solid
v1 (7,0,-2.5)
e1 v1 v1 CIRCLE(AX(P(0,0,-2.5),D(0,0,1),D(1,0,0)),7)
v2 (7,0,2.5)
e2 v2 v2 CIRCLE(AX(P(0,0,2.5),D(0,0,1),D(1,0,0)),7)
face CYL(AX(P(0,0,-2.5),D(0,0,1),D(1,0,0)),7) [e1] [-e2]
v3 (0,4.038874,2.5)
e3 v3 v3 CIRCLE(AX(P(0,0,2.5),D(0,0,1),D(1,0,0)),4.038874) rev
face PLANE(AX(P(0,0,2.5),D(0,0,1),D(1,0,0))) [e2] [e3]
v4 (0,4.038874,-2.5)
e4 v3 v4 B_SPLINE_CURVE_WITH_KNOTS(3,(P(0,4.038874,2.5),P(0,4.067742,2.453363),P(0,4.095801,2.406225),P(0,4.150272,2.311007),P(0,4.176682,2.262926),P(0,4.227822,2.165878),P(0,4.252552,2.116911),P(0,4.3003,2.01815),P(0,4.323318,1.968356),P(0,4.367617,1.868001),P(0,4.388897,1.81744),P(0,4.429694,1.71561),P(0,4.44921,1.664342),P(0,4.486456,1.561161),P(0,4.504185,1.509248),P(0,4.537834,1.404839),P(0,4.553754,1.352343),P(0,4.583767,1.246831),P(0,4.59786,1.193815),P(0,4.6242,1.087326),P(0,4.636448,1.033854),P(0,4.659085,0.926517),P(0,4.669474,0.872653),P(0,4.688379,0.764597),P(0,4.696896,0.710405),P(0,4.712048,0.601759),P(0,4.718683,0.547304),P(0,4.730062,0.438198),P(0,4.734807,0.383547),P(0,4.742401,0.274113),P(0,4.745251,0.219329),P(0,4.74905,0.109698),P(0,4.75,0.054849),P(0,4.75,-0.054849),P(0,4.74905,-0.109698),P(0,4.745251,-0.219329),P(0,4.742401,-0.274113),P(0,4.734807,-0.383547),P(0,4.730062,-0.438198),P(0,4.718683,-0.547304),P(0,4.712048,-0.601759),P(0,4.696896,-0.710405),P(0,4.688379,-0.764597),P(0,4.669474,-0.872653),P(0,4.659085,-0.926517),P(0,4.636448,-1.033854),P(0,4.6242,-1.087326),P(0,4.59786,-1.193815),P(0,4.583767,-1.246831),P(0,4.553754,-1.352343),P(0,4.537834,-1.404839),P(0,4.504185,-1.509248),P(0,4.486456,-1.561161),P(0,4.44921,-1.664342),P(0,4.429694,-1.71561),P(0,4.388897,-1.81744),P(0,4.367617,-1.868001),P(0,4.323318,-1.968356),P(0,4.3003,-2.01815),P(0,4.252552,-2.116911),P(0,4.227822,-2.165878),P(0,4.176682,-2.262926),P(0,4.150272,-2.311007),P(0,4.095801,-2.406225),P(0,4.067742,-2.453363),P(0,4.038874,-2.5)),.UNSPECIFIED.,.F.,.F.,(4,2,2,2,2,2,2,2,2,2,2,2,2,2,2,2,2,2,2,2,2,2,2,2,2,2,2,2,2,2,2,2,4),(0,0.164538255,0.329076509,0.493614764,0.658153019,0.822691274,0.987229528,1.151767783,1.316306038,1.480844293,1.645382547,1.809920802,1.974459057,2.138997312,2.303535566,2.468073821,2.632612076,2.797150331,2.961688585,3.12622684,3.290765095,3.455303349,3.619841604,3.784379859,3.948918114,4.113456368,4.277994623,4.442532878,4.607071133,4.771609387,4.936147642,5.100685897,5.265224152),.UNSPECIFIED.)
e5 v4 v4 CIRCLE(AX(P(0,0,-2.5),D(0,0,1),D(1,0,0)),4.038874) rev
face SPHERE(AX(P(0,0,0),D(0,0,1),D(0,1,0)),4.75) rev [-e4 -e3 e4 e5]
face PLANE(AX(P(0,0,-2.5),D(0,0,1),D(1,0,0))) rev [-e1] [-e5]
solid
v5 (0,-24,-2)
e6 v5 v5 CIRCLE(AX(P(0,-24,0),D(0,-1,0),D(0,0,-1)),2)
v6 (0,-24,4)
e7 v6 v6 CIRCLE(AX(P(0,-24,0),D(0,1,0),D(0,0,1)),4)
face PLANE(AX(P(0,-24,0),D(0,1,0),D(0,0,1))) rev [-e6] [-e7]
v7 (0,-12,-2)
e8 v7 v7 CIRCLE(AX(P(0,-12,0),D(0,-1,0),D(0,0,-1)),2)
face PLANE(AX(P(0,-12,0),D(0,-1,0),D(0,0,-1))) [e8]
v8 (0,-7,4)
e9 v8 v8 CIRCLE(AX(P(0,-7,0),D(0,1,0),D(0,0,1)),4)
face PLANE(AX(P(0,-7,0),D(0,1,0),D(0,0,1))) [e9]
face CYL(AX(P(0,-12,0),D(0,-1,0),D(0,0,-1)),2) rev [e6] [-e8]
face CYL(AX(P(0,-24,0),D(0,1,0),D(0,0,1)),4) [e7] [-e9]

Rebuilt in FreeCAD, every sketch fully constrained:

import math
import FreeCAD as App
import Part
import Sketcher

doc = App.newDocument("Part")
body = doc.addObject("PartDesign::Body", "Body")

sketch1 = body.newObject("Sketcher::SketchObject", "Sketch")
sketch1.AttachmentSupport = (doc.getObject("XY_Plane"), [""])
sketch1.MapMode = "FlatFace"
sketch1.addGeometry(Part.Circle(App.Vector(0, 0, 0), App.Vector(0, 0, 1), 7), False)
sketch1.addConstraint([
    Sketcher.Constraint("Coincident", 0, 3, -1, 1),
    Sketcher.Constraint("Diameter", 0, 14.0),
])
pad1 = body.newObject("PartDesign::Pad", "Pad")
pad1.Profile = sketch1
pad1.Type = "TwoLengths"
pad1.Length = 2.5
pad1.Length2 = 2.5

sketch2 = body.newObject("Sketcher::SketchObject", "Sketch001")
sketch2.AttachmentSupport = (doc.getObject("YZ_Plane"), [""])
sketch2.MapMode = "FlatFace"
sketch2.addGeometry([
    Part.LineSegment(App.Vector(0, 3.5, 0), App.Vector(0, -3.5, 0)),
    Part.LineSegment(App.Vector(0, -3.5, 0), App.Vector(3.2, -3.5, 0)),
    Part.ArcOfCircle(Part.Circle(App.Vector(0, 0, 0), App.Vector(0, 0, 1), 4.8), math.radians(-47), math.radians(47)),
    Part.LineSegment(App.Vector(3.2, 3.5, 0), App.Vector(0, 3.5, 0)),
], False)
sketch2.addConstraint([
    Sketcher.Constraint("Coincident", 0, 2, 1, 1),
    Sketcher.Constraint("Coincident", 1, 2, 2, 1),
    Sketcher.Constraint("Coincident", 2, 2, 3, 1),
    Sketcher.Constraint("Coincident", 3, 2, 0, 1),
    Sketcher.Constraint("Vertical", 0),
    Sketcher.Constraint("Horizontal", 1),
    Sketcher.Constraint("Horizontal", 3),
    Sketcher.Constraint("Coincident", 2, 3, -1, 1),
    Sketcher.Constraint("Symmetric", 0, 2, 3, 2, -1, 1),
    Sketcher.Constraint("DistanceY", 0, 2, 0, 1, 7.0),
    Sketcher.Constraint("Radius", 2, 4.75),
])
groove = body.newObject("PartDesign::Groove", "Groove")
groove.Profile = sketch2
groove.ReferenceAxis = (sketch2, ["V_Axis"])
groove.Angle = 360
body2 = doc.addObject("PartDesign::Body", "Body001")

sketch3 = body2.newObject("Sketcher::SketchObject", "Sketch002")
sketch3.AttachmentSupport = (doc.getObject("XZ_Plane001"), [""])
sketch3.MapMode = "FlatFace"
sketch3.AttachmentOffset = App.Placement(App.Vector(0, 0, 7), App.Rotation())
sketch3.addGeometry(Part.Circle(App.Vector(0, 0, 0), App.Vector(0, 0, 1), 4), False)
sketch3.addConstraint([
    Sketcher.Constraint("Coincident", 0, 3, -1, 1),
    Sketcher.Constraint("Diameter", 0, 8.0),
])
pad2 = body2.newObject("PartDesign::Pad", "Pad001")
pad2.Profile = sketch3
pad2.Length = 17

sketch4 = body2.newObject("Sketcher::SketchObject", "Sketch003")
sketch4.AttachmentSupport = (doc.getObject("XZ_Plane001"), [""])
sketch4.MapMode = "FlatFace"
sketch4.AttachmentOffset = App.Placement(App.Vector(0, 0, 24), App.Rotation())
sketch4.addGeometry(Part.Circle(App.Vector(0, 0, 0), App.Vector(0, 0, 1), 2), False)
sketch4.addConstraint([
    Sketcher.Constraint("Coincident", 0, 3, -1, 1),
    Sketcher.Constraint("Diameter", 0, 4.0),
])
pocket1 = body2.newObject("PartDesign::Pocket", "Pocket")
pocket1.Profile = sketch4
pocket1.Length = 12

doc.recompute()
